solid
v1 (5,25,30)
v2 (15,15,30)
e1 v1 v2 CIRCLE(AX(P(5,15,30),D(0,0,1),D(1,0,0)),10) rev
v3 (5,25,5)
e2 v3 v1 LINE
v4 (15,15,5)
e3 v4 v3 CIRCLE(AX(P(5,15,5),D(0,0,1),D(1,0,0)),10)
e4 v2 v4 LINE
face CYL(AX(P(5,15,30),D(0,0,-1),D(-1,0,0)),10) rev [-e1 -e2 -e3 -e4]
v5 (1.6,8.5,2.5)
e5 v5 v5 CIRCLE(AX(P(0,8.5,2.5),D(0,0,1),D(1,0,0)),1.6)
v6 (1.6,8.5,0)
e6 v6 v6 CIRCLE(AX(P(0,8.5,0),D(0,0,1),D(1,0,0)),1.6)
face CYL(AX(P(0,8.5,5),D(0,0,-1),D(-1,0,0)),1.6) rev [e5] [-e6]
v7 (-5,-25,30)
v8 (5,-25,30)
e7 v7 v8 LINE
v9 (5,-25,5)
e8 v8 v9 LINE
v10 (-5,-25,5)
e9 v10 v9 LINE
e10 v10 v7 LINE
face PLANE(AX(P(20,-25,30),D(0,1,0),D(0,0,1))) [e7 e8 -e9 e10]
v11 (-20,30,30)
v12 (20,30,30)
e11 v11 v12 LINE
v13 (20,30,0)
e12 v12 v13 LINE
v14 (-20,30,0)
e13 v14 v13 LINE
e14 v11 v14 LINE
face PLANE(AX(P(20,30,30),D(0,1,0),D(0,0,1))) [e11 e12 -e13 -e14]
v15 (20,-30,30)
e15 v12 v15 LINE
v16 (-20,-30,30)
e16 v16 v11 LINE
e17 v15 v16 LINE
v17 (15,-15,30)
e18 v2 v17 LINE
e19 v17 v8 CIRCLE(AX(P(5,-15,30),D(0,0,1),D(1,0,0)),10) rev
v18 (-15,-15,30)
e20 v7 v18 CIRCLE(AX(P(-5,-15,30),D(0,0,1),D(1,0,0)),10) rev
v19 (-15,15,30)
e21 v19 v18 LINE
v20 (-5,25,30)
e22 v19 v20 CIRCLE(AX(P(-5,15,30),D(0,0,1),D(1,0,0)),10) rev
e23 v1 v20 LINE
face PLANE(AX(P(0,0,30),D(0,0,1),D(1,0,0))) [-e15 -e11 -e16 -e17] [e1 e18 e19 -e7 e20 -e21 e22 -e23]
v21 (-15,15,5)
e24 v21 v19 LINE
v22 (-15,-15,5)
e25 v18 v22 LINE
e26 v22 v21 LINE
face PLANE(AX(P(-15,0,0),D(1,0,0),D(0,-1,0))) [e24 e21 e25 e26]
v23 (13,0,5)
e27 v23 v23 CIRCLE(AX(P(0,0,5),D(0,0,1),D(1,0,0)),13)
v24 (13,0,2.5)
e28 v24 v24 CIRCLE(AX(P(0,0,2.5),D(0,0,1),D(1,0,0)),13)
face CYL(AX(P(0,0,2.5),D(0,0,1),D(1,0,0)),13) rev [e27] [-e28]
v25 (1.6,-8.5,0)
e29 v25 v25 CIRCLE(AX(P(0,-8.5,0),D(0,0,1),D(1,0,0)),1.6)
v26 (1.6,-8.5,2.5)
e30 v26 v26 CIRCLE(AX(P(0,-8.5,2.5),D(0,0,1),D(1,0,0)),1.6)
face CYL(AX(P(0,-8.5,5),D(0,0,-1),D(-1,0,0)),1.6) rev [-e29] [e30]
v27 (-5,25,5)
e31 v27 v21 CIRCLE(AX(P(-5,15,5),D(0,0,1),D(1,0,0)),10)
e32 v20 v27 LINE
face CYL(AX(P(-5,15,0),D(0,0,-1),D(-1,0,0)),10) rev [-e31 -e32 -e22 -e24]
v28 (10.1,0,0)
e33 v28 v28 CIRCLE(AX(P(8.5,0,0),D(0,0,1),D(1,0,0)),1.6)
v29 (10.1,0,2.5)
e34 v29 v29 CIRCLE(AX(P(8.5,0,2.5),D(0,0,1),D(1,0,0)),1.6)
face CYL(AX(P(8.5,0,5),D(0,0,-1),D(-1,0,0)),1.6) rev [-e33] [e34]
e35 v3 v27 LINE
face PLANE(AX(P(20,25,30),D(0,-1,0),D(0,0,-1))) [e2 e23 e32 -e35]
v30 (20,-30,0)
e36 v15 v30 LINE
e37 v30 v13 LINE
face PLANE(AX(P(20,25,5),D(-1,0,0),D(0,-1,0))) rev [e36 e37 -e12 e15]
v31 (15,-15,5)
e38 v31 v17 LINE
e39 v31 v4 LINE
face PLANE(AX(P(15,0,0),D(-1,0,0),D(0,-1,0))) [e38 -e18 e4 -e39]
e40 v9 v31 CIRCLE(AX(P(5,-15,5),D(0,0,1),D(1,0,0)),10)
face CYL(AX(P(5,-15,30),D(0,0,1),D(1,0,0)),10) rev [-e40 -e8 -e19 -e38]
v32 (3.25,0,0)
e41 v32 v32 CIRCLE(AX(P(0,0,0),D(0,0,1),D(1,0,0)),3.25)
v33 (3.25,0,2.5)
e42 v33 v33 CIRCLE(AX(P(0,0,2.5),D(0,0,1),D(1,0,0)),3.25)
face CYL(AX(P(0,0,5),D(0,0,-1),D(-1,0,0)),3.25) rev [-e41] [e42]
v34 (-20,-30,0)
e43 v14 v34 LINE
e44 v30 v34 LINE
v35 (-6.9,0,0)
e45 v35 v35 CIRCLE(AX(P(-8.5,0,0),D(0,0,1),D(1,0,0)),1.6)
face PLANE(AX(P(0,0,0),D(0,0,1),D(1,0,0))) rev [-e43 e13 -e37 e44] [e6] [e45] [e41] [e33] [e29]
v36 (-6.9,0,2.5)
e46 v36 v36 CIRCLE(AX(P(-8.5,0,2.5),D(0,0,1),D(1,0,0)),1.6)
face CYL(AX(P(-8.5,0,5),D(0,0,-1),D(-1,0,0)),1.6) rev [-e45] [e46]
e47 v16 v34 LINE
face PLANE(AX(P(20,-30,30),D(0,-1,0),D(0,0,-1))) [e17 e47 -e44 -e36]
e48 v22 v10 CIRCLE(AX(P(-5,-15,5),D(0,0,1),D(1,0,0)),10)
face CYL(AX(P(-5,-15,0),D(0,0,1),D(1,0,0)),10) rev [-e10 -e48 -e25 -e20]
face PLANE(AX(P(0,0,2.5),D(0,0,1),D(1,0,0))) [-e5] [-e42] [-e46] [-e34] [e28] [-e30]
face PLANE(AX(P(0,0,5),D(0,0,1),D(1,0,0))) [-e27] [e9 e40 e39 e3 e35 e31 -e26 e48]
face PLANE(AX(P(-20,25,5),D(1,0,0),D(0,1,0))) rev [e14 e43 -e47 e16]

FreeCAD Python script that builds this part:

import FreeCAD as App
import Part
import Sketcher
Q = App.Units.Quantity


def edges_at(feature, points):
    """Names of the edges that pass closest to the given points."""
    edges = feature.Shape.Edges
    near = lambda p: min(range(len(edges)), key=lambda i: edges[i].distToShape(Part.Vertex(*p))[0])
    return sorted({f"Edge{near(p) + 1}" for p in points})


def add_polygon(sketch, points):
    """Adds a closed chain of lines whose ends are joined by coincident constraints."""
    first, n = sketch.GeometryCount, len(points)
    for a, b in zip(points, points[1:] + points[:1]):
        sketch.addGeometry(Part.LineSegment(App.Vector(*a, 0), App.Vector(*b, 0)), False)
    for i in range(n):
        sketch.addConstraint(Sketcher.Constraint("Coincident", first + i, 2, first + (i + 1) % n, 1))

doc = App.newDocument("Part")
params = doc.addObject("Spreadsheet::Sheet", "Params")
for row, (alias, value) in enumerate([
    ("sketch1_diameter", "3.2 mm"),
    ("sketch1_diameter2", "6.5 mm"),
    ("sketch1_width", "40 mm"),
    ("sketch1_height", "50 mm"),
    ("pad1_length", "5 mm"),
    ("sketch2_diameter", "26 mm"),
    ("pocket1_length", "2.5 mm"),
    ("sketch3_width", "40 mm"),
    ("sketch3_height", "5 mm"),
    ("pad2_length", "30 mm"),
    ("sketch4_width", "50 mm"),
    ("sketch4_height", "25 mm"),
    ("pad3_length", "5 mm"),
    ("fillet_radius", "10 mm"),
], start=1):
    params.set(f"A{row}", alias)
    params.set(f"B{row}", "=" + value)
    params.setAlias(f"B{row}", alias)

body = doc.addObject("PartDesign::Body", "Body")

# Sketch on XY plane
sketch1 = body.newObject("Sketcher::SketchObject", "Sketch")
sketch1.AttachmentSupport = (doc.getObject("XY_Plane"), [""])
sketch1.MapMode = "FlatFace"
add_polygon(sketch1, [(-20, 25), (-20, -25), (20, -25), (20, 25)])  # lines 0-3
sketch1.addGeometry(Part.Circle(App.Vector(0, -8.5, 0), App.Vector(0, 0, 1), 1.6), False)  # 4
sketch1.addGeometry(Part.Circle(App.Vector(-8.5, 0, 0), App.Vector(0, 0, 1), 1.6), False)  # 5
sketch1.addGeometry(Part.Circle(App.Vector(0, 0, 0), App.Vector(0, 0, 1), 3.2), False)  # 6
sketch1.addGeometry(Part.Circle(App.Vector(8.5, 0, 0), App.Vector(0, 0, 1), 1.6), False)  # 7
sketch1.addGeometry(Part.Circle(App.Vector(0, 8.5, 0), App.Vector(0, 0, 1), 1.6), False)  # 8
sketch1.addConstraint([
    Sketcher.Constraint("Vertical", 0),
    Sketcher.Constraint("Horizontal", 1),
    Sketcher.Constraint("Vertical", 2),
    Sketcher.Constraint("Horizontal", 3),
    Sketcher.Constraint("Coincident", 6, 3, -1, 1),
    Sketcher.Constraint("Equal", 4, 5),
    Sketcher.Constraint("Equal", 5, 7),
    Sketcher.Constraint("Equal", 7, 8),
    Sketcher.Constraint("Symmetric", 5, 3, 7, 3, -1, 1),
    Sketcher.Constraint("Symmetric", 4, 3, 8, 3, -1, 1),
    Sketcher.Constraint("Symmetric", 0, 2, 2, 2, -1, 1),
    Sketcher.Constraint("PointOnObject", 4, 3, -2),
    Sketcher.Constraint("PointOnObject", 5, 3, -1),
    Sketcher.Constraint("Diameter", 4, Q("3.2 mm")),
    Sketcher.Constraint("Diameter", 6, Q("6.5 mm")),
    Sketcher.Constraint("DistanceX", 1, 1, 1, 2, Q("40 mm")),
    Sketcher.Constraint("DistanceY", 0, 2, 0, 1, Q("50 mm")),
    Sketcher.Constraint("DistanceX", 5, 3, 7, 3, Q("17 mm")),
    Sketcher.Constraint("DistanceY", 4, 3, 8, 3, Q("17 mm")),
])
sketch1.setExpression("Constraints[17]", "Params.sketch1_diameter")
sketch1.setExpression("Constraints[18]", "Params.sketch1_diameter2")
sketch1.setExpression("Constraints[19]", "Params.sketch1_width")
sketch1.setExpression("Constraints[20]", "Params.sketch1_height")
pad1 = body.newObject("PartDesign::Pad", "Pad")
pad1.Profile = sketch1
pad1.setExpression("Length", "Params.pad1_length")

# Sketch on XY plane
sketch2 = body.newObject("Sketcher::SketchObject", "Sketch001")
sketch2.AttachmentSupport = (doc.getObject("XY_Plane"), [""])
sketch2.MapMode = "FlatFace"
sketch2.AttachmentOffset = App.Placement(App.Vector(0, 0, 5), App.Rotation())
sketch2.addGeometry(Part.Circle(App.Vector(0, 0, 0), App.Vector(0, 0, 1), 13), False)
sketch2.addConstraint([
    Sketcher.Constraint("Coincident", 0, 3, -1, 1),
    Sketcher.Constraint("Diameter", 0, Q("26 mm")),
])
sketch2.setExpression("Constraints[1]", "Params.sketch2_diameter")
pocket1 = body.newObject("PartDesign::Pocket", "Pocket")
pocket1.Profile = sketch2
pocket1.setExpression("Length", "Params.pocket1_length")

# Sketch on XY plane
sketch3 = body.newObject("Sketcher::SketchObject", "Sketch002")
sketch3.AttachmentSupport = (doc.getObject("XY_Plane"), [""])
sketch3.MapMode = "FlatFace"
add_polygon(sketch3, [(20, 30), (20, 25), (-20, 25), (-20, 30)])  # lines 0-3
add_polygon(sketch3, [(20, -25), (20, -30), (-20, -30), (-20, -25)])  # lines 4-7
sketch3.addConstraint([
    Sketcher.Constraint("Vertical", 0),
    Sketcher.Constraint("Horizontal", 1),
    Sketcher.Constraint("Vertical", 2),
    Sketcher.Constraint("Horizontal", 3),
    Sketcher.Constraint("Vertical", 4),
    Sketcher.Constraint("Horizontal", 5),
    Sketcher.Constraint("Vertical", 6),
    Sketcher.Constraint("Horizontal", 7),
    Sketcher.Constraint("Symmetric", 2, 2, 4, 2, -1, 1),
    Sketcher.Constraint("Symmetric", 0, 2, 6, 2, -1, 1),
    Sketcher.Constraint("Vertical", 3, 2, 4, 2),
    Sketcher.Constraint("DistanceX", 1, 2, 1, 1, Q("40 mm")),
    Sketcher.Constraint("DistanceY", 0, 2, 0, 1, Q("5 mm")),
    Sketcher.Constraint("DistanceY", -1, 1, 0, 2, Q("25 mm")),
])
sketch3.setExpression("Constraints[19]", "Params.sketch3_width")
sketch3.setExpression("Constraints[20]", "Params.sketch3_height")
pad2 = body.newObject("PartDesign::Pad", "Pad001")
pad2.Profile = sketch3
pad2.setExpression("Length", "Params.pad2_length")

# Sketch on YZ plane
sketch4 = body.newObject("Sketcher::SketchObject", "Sketch003")
sketch4.AttachmentSupport = (doc.getObject("YZ_Plane"), [""])
sketch4.MapMode = "FlatFace"
sketch4.AttachmentOffset = App.Placement(App.Vector(0, 0, 20), App.Rotation())
add_polygon(sketch4, [(25, 30), (-25, 30), (-25, 5), (25, 5)])  # lines 0-3
sketch4.addConstraint([
    Sketcher.Constraint("Horizontal", 0),
    Sketcher.Constraint("Vertical", 1),
    Sketcher.Constraint("Horizontal", 2),
    Sketcher.Constraint("Vertical", 3),
    Sketcher.Constraint("DistanceX", 0, 2, 0, 1, Q("50 mm")),
    Sketcher.Constraint("DistanceY", 1, 2, 1, 1, Q("25 mm")),
    Sketcher.Constraint("DistanceX", 0, 2, -1, 1, Q("25 mm")),
    Sketcher.Constraint("DistanceY", -1, 1, 0, 2, Q("30 mm")),
])
sketch4.setExpression("Constraints[8]", "Params.sketch4_width")
sketch4.setExpression("Constraints[9]", "Params.sketch4_height")
pad3 = body.newObject("PartDesign::Pad", "Pad002")
pad3.Profile = sketch4
pad3.setExpression("Length", "Params.pad3_length")
pad3.Reversed = True
doc.recompute()

mirrored = body.newObject("PartDesign::Mirrored", "Mirrored")
mirrored.Originals = [pad3]
mirrored.MirrorPlane = (doc.getObject("YZ_Plane"), [""])
body.Tip = mirrored
doc.recompute()

fillet = body.newObject("PartDesign::Fillet", "Fillet")
fillet.Base = (mirrored, edges_at(mirrored, [
    (15, -25, 17.5),
    (15, 25, 17.5),
    (-15, 25, 17.5),
    (-15, -25, 17.5),
]))
fillet.setExpression("Radius", "Params.fillet_radius")

doc.recompute()
